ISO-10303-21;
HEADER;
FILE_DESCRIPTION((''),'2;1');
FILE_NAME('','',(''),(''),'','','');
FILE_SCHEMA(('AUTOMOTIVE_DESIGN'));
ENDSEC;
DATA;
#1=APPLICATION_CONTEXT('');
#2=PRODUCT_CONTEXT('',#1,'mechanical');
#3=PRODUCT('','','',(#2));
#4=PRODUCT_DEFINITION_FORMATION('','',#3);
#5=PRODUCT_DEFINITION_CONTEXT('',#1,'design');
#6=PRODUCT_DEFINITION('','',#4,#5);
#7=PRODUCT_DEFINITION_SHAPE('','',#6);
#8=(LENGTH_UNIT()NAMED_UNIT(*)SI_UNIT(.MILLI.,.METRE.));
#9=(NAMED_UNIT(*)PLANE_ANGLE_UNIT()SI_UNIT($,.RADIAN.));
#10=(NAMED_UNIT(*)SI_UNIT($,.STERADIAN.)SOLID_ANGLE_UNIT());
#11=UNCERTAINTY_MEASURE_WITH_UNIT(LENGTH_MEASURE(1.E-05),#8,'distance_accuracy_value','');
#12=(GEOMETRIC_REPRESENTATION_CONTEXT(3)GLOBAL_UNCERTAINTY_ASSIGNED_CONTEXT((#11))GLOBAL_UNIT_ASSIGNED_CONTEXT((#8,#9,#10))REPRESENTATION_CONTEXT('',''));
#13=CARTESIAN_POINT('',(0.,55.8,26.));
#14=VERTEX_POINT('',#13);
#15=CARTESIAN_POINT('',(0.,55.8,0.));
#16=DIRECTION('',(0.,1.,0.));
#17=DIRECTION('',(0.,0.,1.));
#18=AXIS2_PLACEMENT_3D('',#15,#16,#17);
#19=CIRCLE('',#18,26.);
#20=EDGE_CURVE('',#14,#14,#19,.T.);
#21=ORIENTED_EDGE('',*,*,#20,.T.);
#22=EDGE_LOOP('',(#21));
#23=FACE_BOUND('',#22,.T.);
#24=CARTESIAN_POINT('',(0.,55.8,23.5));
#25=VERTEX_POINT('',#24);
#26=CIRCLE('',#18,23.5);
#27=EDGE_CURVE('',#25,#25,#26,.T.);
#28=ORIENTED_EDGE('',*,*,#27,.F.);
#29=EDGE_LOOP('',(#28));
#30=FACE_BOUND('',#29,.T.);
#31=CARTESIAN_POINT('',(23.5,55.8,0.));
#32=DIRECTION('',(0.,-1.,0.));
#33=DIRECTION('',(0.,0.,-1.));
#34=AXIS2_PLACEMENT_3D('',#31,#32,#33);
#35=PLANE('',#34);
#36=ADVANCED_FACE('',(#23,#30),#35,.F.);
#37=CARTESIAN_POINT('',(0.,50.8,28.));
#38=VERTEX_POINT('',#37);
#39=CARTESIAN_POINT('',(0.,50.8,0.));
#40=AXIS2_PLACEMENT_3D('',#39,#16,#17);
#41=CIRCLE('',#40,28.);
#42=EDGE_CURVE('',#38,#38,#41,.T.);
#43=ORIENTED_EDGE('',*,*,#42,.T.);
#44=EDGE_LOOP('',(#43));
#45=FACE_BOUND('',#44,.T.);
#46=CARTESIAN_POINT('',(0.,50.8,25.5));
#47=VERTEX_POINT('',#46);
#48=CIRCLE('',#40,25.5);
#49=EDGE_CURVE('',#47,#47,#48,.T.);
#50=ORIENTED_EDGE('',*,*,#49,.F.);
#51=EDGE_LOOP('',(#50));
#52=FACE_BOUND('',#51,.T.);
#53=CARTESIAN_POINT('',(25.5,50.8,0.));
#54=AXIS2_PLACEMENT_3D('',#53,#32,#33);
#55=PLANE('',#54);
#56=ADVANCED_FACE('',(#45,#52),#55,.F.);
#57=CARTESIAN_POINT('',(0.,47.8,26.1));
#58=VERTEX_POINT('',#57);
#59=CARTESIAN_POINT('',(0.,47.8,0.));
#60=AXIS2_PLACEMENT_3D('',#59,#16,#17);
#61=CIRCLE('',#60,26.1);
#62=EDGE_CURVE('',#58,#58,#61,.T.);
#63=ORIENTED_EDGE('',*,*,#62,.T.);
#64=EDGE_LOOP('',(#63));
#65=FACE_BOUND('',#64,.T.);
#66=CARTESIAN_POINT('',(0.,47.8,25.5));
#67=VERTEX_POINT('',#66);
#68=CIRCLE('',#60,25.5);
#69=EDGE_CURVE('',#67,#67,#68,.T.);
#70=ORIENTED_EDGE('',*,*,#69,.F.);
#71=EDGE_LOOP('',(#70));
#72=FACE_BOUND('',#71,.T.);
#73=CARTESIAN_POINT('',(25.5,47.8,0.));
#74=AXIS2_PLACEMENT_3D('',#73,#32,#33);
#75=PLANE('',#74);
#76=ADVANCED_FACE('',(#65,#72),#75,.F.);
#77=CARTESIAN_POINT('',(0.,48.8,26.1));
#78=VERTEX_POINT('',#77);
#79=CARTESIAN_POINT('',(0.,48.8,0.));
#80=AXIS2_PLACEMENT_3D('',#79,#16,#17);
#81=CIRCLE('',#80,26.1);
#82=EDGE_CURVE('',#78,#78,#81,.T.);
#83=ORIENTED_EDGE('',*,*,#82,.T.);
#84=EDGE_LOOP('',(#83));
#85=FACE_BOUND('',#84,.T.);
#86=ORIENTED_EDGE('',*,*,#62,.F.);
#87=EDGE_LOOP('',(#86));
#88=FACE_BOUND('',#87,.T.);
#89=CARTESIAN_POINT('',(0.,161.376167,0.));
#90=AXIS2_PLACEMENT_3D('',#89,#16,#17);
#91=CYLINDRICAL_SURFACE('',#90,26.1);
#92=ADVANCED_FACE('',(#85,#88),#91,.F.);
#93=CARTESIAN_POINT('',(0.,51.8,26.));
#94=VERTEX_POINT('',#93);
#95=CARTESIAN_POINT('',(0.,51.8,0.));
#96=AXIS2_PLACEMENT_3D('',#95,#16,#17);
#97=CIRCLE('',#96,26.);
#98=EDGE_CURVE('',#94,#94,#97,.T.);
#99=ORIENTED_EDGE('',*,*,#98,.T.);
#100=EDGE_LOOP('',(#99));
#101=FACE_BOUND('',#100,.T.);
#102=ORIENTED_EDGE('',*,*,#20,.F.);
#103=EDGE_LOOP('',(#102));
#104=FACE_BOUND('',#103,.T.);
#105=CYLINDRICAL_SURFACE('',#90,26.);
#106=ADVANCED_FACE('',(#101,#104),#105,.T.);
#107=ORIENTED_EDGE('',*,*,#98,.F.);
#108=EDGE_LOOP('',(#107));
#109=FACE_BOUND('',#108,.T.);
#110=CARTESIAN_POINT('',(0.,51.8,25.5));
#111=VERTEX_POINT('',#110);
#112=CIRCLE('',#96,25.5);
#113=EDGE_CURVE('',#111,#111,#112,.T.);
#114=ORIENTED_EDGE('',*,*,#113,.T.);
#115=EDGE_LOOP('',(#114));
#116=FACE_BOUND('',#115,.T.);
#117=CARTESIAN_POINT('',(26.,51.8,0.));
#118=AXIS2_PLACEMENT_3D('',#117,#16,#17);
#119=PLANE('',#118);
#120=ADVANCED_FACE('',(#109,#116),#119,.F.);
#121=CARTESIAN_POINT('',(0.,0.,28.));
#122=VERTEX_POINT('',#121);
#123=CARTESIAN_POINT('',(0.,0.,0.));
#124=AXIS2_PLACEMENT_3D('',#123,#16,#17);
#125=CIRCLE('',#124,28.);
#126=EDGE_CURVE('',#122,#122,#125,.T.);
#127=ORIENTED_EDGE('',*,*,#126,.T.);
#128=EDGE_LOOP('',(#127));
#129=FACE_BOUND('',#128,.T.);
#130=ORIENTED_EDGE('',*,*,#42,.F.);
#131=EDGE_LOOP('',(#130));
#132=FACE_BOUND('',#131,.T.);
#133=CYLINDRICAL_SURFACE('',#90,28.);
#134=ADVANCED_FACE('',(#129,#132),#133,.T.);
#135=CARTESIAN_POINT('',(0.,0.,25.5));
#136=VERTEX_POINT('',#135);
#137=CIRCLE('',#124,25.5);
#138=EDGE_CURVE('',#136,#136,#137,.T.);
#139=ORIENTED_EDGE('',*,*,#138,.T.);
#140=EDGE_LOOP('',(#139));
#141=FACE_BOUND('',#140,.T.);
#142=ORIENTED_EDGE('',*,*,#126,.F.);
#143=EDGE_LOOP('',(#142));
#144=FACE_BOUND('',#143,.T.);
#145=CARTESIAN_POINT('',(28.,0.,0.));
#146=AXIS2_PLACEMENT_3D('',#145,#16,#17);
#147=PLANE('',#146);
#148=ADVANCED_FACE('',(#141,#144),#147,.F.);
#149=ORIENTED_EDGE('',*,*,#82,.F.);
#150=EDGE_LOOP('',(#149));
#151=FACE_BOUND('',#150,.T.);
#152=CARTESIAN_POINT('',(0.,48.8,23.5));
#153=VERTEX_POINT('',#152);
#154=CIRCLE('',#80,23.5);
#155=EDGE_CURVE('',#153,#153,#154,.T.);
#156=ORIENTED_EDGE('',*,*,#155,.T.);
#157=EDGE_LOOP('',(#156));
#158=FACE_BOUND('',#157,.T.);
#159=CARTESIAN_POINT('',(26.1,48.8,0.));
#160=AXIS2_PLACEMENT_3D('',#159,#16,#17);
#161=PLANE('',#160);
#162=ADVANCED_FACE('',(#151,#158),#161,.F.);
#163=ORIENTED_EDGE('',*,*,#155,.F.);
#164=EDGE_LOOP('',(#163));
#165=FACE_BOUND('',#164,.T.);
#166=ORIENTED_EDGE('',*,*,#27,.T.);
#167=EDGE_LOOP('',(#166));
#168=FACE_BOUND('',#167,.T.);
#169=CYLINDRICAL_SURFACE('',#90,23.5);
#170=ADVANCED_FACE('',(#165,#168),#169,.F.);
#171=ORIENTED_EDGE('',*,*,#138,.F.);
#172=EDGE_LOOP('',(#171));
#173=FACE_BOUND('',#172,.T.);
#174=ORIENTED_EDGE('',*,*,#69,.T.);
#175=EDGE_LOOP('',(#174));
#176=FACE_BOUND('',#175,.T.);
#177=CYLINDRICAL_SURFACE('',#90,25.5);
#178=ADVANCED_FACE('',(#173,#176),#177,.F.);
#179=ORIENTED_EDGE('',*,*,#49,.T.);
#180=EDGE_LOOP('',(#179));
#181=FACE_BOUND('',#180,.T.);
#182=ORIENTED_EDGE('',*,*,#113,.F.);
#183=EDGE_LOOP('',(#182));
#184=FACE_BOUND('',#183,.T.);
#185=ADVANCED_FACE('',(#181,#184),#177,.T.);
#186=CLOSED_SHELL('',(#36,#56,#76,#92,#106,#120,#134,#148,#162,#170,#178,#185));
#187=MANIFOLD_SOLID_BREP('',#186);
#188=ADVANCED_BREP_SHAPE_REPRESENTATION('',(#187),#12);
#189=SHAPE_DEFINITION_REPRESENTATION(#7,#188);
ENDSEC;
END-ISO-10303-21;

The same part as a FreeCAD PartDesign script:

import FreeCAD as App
import Part
import Sketcher

doc = App.newDocument("Part")
body = doc.addObject("PartDesign::Body", "Body")

# Sketch on XY plane
sketch1 = body.newObject("Sketcher::SketchObject", "Sketch")
sketch1.AttachmentSupport = (doc.getObject("XY_Plane"), [""])
sketch1.MapMode = "FlatFace"
sketch1.addGeometry(Part.LineSegment(App.Vector(26, 55.8, 0), App.Vector(23.5, 55.8, 0)), False)
sketch1.addGeometry(Part.LineSegment(App.Vector(23.5, 55.8, 0), App.Vector(23.5, 48.8, 0)), False)
sketch1.addGeometry(Part.LineSegment(App.Vector(23.5, 48.8, 0), App.Vector(26.1, 48.8, 0)), False)
sketch1.addGeometry(Part.LineSegment(App.Vector(26.1, 48.8, 0), App.Vector(26.1, 47.8, 0)), False)
sketch1.addGeometry(Part.LineSegment(App.Vector(26.1, 47.8, 0), App.Vector(25.5, 47.8, 0)), False)
sketch1.addGeometry(Part.LineSegment(App.Vector(25.5, 47.8, 0), App.Vector(25.5, 0, 0)), False)
sketch1.addGeometry(Part.LineSegment(App.Vector(25.5, 0, 0), App.Vector(28, 0, 0)), False)
sketch1.addGeometry(Part.LineSegment(App.Vector(28, 0, 0), App.Vector(28, 50.8, 0)), False)
sketch1.addGeometry(Part.LineSegment(App.Vector(28, 50.8, 0), App.Vector(25.5, 50.8, 0)), False)
sketch1.addGeometry(Part.LineSegment(App.Vector(25.5, 50.8, 0), App.Vector(25.5, 51.8, 0)), False)
sketch1.addGeometry(Part.LineSegment(App.Vector(25.5, 51.8, 0), App.Vector(26, 51.8, 0)), False)
sketch1.addGeometry(Part.LineSegment(App.Vector(26, 51.8, 0), App.Vector(26, 55.8, 0)), False)
sketch1.addConstraint(Sketcher.Constraint("Coincident", 0, 2, 1, 1))
sketch1.addConstraint(Sketcher.Constraint("Coincident", 1, 2, 2, 1))
sketch1.addConstraint(Sketcher.Constraint("Coincident", 2, 2, 3, 1))
sketch1.addConstraint(Sketcher.Constraint("Coincident", 3, 2, 4, 1))
sketch1.addConstraint(Sketcher.Constraint("Coincident", 4, 2, 5, 1))
sketch1.addConstraint(Sketcher.Constraint("Coincident", 5, 2, 6, 1))
sketch1.addConstraint(Sketcher.Constraint("Coincident", 6, 2, 7, 1))
sketch1.addConstraint(Sketcher.Constraint("Coincident", 7, 2, 8, 1))
sketch1.addConstraint(Sketcher.Constraint("Coincident", 8, 2, 9, 1))
sketch1.addConstraint(Sketcher.Constraint("Coincident", 9, 2, 10, 1))
sketch1.addConstraint(Sketcher.Constraint("Coincident", 10, 2, 11, 1))
sketch1.addConstraint(Sketcher.Constraint("Coincident", 11, 2, 0, 1))
sketch1.addConstraint(Sketcher.Constraint("Horizontal", 0))
sketch1.addConstraint(Sketcher.Constraint("Vertical", 1))
sketch1.addConstraint(Sketcher.Constraint("Horizontal", 2))
sketch1.addConstraint(Sketcher.Constraint("Vertical", 3))
sketch1.addConstraint(Sketcher.Constraint("Horizontal", 4))
sketch1.addConstraint(Sketcher.Constraint("Vertical", 5))
sketch1.addConstraint(Sketcher.Constraint("Horizontal", 6))
sketch1.addConstraint(Sketcher.Constraint("Vertical", 7))
sketch1.addConstraint(Sketcher.Constraint("Horizontal", 8))
sketch1.addConstraint(Sketcher.Constraint("Vertical", 9))
sketch1.addConstraint(Sketcher.Constraint("Horizontal", 10))
sketch1.addConstraint(Sketcher.Constraint("Vertical", 11))
sketch1.addConstraint(Sketcher.Constraint("PointOnObject", 5, 2, -1))
sketch1.addConstraint(Sketcher.Constraint("Vertical", 5, 2, 8, 2))
sketch1.addConstraint(Sketcher.Constraint("Equal", 0, 6))
sketch1.addConstraint(Sketcher.Constraint("Equal", 3, 9))
sketch1.addConstraint(Sketcher.Constraint("DistanceY", 1, 2, 1, 1, 7.0))
sketch1.addConstraint(Sketcher.Constraint("DistanceY", 3, 2, 3, 1, 1.0))
sketch1.addConstraint(Sketcher.Constraint("DistanceY", 11, 1, 11, 2, 4.0))
sketch1.addConstraint(Sketcher.Constraint("DistanceX", 0, 2, 0, 1, 2.5))
sketch1.addConstraint(Sketcher.Constraint("DistanceX", 2, 1, 2, 2, 2.6))
sketch1.addConstraint(Sketcher.Constraint("DistanceX", 4, 2, 4, 1, 0.6))
sketch1.addConstraint(Sketcher.Constraint("DistanceY", 5, 2, 5, 1, 47.8))
sketch1.addConstraint(Sketcher.Constraint("DistanceX", -1, 1, 6, 2, 28.0))
revolution = body.newObject("PartDesign::Revolution", "Revolution")
revolution.Profile = sketch1
revolution.ReferenceAxis = (sketch1, ["V_Axis"])
revolution.Angle = 360

doc.recompute()
